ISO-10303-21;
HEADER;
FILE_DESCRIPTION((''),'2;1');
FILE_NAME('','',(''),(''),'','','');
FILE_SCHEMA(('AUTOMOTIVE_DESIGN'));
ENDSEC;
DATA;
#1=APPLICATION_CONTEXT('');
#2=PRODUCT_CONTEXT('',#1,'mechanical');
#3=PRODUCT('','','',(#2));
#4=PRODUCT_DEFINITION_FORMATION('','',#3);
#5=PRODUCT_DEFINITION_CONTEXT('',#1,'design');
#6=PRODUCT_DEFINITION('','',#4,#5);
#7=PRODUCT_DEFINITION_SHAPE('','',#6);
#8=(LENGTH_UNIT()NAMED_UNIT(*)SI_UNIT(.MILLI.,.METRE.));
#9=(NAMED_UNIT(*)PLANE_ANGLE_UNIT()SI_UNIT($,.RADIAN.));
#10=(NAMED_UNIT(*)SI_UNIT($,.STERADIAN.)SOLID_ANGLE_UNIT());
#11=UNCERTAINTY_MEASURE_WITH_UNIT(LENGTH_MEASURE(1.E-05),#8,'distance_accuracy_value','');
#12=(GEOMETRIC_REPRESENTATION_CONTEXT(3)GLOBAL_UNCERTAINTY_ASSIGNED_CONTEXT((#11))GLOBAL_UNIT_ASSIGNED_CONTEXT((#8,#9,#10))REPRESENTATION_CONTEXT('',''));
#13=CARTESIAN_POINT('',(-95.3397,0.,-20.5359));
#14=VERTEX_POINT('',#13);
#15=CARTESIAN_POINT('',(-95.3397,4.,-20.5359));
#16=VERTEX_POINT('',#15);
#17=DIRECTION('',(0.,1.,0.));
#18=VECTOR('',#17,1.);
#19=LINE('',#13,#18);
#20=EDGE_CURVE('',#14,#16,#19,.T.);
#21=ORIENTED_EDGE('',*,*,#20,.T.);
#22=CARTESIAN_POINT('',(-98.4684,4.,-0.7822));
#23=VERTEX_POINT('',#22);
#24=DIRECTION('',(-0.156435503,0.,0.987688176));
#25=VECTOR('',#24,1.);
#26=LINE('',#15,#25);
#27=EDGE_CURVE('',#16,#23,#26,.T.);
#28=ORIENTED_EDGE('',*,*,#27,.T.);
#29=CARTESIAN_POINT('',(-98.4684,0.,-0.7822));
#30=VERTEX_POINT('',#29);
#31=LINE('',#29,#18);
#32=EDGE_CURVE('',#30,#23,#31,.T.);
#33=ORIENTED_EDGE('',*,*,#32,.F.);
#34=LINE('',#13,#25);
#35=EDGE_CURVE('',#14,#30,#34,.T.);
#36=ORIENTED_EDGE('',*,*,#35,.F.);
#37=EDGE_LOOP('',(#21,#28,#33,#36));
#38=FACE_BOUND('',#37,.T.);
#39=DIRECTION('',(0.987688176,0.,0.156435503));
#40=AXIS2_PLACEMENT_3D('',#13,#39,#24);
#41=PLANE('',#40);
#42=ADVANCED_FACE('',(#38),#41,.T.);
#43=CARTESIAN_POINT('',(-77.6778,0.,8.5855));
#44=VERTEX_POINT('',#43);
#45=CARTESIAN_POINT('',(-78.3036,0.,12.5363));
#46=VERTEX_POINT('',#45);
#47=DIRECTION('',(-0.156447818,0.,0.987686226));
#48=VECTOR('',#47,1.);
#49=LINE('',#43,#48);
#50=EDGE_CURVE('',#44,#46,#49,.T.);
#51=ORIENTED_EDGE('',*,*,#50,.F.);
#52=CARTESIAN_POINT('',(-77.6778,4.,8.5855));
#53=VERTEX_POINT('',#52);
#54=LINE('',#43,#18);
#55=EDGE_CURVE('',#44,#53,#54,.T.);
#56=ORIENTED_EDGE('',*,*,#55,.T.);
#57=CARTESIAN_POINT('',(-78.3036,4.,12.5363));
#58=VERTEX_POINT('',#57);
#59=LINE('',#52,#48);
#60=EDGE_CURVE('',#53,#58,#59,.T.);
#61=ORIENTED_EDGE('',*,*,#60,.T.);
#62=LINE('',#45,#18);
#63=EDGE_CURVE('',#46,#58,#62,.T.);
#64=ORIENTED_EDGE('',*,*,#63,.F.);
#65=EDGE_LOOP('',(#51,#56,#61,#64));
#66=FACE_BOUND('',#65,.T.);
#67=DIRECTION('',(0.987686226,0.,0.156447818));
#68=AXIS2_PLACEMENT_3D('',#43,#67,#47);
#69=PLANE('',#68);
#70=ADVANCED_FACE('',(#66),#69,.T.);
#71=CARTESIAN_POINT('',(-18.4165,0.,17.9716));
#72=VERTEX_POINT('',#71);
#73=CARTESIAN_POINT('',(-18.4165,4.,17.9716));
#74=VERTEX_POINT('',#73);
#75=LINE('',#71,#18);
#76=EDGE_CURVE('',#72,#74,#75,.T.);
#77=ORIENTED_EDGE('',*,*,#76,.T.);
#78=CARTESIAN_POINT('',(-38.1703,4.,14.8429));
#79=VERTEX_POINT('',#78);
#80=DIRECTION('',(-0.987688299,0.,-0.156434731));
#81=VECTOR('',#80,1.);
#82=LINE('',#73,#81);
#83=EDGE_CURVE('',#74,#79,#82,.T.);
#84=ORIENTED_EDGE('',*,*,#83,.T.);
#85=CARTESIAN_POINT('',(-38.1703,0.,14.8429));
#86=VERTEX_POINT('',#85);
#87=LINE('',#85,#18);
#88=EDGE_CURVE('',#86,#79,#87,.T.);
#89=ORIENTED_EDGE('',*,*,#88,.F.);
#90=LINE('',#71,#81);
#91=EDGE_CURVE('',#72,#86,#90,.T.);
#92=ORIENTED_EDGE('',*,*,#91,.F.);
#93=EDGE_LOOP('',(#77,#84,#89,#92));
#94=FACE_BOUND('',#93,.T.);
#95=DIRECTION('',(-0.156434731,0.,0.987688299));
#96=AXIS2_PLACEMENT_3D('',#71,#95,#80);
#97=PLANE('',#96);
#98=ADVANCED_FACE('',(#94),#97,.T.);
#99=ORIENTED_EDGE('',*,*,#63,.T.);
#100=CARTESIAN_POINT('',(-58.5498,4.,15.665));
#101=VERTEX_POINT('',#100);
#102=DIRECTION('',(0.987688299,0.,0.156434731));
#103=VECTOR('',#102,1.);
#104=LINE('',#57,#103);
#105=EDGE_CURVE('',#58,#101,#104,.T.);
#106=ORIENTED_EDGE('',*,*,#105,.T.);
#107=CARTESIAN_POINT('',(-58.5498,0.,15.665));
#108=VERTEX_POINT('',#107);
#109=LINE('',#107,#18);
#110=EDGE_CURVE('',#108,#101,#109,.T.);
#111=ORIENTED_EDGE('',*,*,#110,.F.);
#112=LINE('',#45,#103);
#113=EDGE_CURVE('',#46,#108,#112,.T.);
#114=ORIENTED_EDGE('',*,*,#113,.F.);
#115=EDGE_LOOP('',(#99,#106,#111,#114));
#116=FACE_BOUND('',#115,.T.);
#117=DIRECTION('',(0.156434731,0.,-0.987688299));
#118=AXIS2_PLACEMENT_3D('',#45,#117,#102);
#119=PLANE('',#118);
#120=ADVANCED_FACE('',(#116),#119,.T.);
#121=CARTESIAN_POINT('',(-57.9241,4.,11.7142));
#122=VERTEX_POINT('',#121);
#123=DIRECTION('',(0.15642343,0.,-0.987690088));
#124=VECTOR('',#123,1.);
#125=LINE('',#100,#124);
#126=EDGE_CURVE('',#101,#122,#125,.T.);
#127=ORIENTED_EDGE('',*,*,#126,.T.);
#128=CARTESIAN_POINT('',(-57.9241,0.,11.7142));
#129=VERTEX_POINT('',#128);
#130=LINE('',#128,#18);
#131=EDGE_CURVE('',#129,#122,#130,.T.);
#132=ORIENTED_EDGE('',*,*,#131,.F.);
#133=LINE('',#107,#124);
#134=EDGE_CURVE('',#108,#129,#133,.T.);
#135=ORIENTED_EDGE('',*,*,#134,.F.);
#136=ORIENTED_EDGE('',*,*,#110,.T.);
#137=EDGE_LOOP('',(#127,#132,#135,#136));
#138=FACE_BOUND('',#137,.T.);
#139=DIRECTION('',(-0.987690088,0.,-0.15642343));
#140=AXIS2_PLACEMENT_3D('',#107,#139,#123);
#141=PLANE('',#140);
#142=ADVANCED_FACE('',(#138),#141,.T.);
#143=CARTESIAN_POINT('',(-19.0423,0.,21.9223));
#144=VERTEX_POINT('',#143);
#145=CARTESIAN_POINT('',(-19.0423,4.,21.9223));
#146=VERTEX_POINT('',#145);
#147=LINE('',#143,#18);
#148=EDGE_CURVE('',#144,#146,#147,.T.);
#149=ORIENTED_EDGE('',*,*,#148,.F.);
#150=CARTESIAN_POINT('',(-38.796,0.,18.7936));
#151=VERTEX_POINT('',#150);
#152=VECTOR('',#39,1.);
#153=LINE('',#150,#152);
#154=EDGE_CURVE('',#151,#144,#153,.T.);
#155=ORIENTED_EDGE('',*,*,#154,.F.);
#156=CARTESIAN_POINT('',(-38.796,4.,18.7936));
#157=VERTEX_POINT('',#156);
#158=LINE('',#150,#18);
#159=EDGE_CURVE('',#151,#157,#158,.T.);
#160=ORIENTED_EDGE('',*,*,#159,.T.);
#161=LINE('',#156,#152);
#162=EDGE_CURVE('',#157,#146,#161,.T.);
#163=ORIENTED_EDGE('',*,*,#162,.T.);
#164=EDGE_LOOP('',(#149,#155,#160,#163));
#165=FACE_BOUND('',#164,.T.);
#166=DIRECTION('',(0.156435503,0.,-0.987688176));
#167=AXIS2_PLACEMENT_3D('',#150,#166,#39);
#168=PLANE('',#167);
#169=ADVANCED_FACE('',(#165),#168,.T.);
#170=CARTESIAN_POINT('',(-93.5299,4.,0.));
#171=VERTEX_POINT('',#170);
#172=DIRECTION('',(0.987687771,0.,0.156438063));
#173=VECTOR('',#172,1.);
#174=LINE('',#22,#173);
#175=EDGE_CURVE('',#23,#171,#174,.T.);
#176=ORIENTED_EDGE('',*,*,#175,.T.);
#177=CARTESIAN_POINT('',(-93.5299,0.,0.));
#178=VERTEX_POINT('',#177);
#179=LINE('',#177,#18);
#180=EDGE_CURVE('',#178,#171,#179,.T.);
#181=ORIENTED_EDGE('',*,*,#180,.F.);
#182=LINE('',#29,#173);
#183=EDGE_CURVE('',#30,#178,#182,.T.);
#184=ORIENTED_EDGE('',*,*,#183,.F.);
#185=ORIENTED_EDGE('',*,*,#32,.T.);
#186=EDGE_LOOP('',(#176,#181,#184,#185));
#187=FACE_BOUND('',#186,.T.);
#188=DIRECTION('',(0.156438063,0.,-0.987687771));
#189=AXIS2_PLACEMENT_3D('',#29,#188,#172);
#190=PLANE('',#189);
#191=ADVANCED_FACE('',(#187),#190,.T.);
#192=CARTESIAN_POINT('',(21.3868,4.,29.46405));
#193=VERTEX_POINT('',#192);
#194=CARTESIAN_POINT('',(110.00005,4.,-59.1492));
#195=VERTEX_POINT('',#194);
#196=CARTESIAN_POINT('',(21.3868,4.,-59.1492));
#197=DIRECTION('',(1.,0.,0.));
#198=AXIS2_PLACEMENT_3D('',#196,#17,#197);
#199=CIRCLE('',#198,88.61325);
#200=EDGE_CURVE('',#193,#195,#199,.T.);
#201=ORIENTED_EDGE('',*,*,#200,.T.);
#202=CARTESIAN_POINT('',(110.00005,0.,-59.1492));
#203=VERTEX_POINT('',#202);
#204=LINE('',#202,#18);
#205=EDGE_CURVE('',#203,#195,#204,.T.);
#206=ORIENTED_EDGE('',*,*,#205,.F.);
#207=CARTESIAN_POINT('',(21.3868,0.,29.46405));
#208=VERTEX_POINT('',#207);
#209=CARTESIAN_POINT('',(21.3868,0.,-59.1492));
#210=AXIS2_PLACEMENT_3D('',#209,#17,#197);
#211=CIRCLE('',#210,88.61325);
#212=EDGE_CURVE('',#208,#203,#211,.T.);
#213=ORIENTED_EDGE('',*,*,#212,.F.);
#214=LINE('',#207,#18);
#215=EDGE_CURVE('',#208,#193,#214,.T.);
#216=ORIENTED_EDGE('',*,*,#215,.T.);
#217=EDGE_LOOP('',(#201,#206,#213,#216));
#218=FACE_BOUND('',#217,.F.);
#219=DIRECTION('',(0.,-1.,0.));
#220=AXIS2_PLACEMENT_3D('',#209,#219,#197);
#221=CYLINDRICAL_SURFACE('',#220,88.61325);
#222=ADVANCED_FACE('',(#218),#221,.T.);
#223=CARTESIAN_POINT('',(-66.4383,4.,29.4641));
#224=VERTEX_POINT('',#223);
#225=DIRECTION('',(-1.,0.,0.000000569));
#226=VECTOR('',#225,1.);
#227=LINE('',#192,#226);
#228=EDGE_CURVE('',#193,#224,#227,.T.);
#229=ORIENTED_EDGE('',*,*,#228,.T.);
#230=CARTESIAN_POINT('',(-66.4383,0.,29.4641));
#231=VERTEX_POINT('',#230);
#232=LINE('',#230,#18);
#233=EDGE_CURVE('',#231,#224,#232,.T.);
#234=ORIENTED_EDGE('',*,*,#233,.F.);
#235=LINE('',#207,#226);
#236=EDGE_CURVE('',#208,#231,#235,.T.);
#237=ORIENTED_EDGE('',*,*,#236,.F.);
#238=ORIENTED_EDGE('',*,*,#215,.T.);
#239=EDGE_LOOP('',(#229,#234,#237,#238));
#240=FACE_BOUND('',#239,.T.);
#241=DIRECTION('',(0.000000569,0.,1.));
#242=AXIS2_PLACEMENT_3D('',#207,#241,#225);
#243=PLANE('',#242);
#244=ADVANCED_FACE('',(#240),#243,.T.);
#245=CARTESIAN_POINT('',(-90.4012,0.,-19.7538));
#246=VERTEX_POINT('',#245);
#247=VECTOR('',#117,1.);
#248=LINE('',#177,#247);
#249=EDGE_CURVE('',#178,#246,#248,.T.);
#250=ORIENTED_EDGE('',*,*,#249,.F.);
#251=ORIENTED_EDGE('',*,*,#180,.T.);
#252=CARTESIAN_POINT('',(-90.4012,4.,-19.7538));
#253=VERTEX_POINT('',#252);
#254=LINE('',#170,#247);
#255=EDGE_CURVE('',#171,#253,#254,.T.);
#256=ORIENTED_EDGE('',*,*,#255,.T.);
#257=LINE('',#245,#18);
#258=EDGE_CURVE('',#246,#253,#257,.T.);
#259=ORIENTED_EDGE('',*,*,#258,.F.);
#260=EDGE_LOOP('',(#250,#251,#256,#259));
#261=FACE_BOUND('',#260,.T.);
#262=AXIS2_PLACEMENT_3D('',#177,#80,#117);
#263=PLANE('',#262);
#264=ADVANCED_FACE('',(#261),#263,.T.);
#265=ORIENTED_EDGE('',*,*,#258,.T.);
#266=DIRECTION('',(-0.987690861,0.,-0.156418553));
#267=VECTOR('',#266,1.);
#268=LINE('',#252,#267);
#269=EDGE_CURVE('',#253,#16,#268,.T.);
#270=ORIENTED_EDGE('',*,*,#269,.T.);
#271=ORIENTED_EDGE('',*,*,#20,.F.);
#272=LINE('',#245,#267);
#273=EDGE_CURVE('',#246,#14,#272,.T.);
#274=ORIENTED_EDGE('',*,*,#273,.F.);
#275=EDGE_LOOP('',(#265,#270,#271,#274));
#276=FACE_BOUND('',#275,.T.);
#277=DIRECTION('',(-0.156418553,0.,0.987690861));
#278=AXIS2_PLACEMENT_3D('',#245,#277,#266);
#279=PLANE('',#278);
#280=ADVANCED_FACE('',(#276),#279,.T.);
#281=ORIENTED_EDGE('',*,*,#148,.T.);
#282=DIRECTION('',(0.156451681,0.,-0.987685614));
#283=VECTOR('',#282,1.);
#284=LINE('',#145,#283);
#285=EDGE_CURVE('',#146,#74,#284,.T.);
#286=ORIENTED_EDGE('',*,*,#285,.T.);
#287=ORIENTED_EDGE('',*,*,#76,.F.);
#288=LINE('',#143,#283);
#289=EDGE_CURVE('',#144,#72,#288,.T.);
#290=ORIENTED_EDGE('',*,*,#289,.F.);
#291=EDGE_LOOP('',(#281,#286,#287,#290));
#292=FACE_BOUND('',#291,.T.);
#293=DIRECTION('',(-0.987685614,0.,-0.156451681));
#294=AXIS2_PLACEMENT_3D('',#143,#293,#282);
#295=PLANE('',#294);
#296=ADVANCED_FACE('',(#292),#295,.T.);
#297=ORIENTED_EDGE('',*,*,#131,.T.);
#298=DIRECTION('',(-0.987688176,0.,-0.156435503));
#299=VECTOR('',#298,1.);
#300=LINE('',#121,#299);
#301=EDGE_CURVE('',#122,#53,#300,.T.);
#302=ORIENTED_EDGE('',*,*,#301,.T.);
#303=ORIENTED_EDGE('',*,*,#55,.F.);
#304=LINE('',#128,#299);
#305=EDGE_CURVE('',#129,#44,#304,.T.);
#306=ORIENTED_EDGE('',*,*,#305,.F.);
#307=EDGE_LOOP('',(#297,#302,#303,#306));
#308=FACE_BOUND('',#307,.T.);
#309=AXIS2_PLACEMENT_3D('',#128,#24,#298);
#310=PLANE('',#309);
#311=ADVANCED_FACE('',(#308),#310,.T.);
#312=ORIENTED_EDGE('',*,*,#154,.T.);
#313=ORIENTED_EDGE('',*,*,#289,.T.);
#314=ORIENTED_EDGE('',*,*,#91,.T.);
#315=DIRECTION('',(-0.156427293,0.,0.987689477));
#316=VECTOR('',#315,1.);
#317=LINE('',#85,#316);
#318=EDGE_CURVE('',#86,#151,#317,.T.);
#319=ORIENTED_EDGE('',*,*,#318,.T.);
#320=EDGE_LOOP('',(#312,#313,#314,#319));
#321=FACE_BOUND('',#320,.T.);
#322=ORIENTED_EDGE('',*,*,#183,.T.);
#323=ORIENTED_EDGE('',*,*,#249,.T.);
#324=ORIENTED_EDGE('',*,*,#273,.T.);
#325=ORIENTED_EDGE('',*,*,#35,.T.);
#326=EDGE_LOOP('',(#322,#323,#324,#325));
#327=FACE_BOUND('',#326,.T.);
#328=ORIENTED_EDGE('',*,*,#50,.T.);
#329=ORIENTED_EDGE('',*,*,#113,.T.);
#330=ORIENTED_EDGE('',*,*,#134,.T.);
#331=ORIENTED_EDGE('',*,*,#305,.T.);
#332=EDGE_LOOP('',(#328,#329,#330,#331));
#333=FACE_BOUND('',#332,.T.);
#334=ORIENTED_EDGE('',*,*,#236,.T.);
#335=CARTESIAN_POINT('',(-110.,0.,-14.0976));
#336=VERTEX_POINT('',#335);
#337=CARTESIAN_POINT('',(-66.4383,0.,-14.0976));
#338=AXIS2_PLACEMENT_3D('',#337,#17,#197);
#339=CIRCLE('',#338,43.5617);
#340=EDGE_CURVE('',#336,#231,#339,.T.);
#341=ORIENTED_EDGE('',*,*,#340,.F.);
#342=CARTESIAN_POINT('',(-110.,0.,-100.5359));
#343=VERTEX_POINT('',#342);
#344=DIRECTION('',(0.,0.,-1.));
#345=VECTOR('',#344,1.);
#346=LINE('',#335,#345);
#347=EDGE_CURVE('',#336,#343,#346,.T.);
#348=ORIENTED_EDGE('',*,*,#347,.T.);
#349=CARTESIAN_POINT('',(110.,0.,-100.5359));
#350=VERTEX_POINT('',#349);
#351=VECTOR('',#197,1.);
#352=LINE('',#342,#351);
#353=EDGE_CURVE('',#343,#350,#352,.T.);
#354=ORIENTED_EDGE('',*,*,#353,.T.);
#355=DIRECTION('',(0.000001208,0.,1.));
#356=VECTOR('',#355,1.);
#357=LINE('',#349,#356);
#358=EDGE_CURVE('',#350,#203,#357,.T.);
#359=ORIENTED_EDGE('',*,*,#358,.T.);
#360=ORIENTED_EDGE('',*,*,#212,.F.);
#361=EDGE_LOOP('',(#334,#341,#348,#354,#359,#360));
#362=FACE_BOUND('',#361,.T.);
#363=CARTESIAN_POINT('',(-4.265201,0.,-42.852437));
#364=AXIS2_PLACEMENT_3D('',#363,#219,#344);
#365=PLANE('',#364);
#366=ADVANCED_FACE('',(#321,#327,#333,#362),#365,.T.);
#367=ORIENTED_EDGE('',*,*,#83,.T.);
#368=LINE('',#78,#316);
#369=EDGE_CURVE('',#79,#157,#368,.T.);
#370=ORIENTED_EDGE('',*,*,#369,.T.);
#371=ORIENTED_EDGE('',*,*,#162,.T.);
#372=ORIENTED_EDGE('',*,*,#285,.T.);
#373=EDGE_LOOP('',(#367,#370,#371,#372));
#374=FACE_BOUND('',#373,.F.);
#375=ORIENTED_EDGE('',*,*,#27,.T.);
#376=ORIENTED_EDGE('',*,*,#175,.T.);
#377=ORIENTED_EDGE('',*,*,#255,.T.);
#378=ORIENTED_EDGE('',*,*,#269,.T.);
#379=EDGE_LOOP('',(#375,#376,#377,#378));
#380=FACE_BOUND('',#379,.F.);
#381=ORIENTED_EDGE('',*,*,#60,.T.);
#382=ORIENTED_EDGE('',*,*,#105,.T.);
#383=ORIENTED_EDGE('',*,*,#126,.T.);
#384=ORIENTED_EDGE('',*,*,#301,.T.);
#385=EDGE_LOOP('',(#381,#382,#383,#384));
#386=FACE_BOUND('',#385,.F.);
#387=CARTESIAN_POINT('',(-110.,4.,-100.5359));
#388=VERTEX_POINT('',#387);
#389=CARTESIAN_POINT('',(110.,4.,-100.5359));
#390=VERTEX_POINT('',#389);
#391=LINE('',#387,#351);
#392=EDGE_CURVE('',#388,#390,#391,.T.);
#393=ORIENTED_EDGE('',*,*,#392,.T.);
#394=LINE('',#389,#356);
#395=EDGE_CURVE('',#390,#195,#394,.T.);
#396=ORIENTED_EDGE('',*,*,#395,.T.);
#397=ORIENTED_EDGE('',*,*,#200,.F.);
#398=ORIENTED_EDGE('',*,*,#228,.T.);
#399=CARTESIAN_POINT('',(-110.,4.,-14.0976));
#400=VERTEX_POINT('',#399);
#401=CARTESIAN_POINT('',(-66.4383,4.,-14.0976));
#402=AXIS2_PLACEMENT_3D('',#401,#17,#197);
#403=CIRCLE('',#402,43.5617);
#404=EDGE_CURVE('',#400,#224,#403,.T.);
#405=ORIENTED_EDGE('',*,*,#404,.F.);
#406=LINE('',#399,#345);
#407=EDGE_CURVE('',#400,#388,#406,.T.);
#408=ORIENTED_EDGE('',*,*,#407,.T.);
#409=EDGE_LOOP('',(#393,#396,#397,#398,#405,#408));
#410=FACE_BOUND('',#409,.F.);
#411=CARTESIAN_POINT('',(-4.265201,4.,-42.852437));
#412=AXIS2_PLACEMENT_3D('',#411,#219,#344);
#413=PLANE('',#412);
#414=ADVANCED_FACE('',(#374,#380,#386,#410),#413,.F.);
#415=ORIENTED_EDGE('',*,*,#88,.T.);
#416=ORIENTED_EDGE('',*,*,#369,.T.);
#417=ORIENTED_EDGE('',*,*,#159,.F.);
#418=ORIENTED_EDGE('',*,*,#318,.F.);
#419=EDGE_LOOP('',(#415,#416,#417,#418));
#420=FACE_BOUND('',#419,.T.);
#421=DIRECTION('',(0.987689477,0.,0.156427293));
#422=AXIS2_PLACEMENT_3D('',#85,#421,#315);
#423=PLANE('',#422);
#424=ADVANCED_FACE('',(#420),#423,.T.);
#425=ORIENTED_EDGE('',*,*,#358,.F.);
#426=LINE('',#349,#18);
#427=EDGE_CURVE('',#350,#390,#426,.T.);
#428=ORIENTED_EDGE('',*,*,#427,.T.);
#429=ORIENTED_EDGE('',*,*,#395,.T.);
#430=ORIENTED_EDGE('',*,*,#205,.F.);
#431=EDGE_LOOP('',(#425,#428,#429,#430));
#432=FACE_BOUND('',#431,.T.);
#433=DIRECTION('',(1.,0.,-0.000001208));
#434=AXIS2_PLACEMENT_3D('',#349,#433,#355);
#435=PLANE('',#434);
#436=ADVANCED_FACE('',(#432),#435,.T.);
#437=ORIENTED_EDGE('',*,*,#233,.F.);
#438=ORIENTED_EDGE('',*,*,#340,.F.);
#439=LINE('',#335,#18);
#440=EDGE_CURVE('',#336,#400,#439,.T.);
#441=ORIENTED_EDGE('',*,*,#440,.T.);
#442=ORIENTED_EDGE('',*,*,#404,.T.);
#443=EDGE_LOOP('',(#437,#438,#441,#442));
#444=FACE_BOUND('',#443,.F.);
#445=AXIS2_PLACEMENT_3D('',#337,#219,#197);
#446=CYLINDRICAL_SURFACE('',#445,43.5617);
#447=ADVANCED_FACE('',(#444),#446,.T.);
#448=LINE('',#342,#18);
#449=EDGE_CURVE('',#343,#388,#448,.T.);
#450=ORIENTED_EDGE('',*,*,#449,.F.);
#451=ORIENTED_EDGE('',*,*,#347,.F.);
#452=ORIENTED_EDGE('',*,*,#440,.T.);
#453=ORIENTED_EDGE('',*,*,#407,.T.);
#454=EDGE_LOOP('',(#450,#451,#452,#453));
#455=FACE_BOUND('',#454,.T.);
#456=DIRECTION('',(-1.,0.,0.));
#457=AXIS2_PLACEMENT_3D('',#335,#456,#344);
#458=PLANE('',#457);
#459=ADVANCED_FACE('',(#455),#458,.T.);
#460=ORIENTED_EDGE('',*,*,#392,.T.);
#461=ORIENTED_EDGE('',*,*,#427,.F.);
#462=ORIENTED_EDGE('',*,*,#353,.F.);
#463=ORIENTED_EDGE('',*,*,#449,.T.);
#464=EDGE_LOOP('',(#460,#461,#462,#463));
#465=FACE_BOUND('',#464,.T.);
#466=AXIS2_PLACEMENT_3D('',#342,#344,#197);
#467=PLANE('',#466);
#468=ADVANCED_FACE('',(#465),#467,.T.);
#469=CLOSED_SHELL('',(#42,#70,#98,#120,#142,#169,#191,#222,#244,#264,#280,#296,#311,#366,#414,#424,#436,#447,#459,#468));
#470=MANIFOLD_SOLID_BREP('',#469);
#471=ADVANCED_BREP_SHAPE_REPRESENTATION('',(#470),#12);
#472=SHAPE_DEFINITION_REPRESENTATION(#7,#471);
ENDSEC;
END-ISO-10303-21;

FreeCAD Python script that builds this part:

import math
import FreeCAD as App
import Part
import Sketcher

V = App.Vector
Q = App.Units.Quantity


def add_polygon(sketch, points):
    """Adds a closed chain of lines whose ends are joined by coincident constraints."""
    first, n = sketch.GeometryCount, len(points)
    for a, b in zip(points, points[1:] + points[:1]):
        sketch.addGeometry(Part.LineSegment(App.Vector(*a, 0), App.Vector(*b, 0)), False)
    for i in range(n):
        sketch.addConstraint(Sketcher.Constraint("Coincident", first + i, 2, first + (i + 1) % n, 1))

doc = App.newDocument("Part")
body = doc.addObject("PartDesign::Body", "Body")

# Sketch on XZ plane
sketch1 = body.newObject("Sketcher::SketchObject", "Sketch")
sketch1.AttachmentSupport = (doc.getObject("XZ_Plane"), [""])
sketch1.MapMode = "FlatFace"
sketch1.addGeometry(Part.ArcOfCircle(Part.Circle(V(21.4, -59.1, 0), V(0, 0, 1), 88.6), math.radians(0), math.radians(90)), False)  # 0
sketch1.addGeometry(Part.LineSegment(V(21.4, 29.5, 0), V(-66.4, 29.5, 0)), False)  # 1
sketch1.addGeometry(Part.ArcOfCircle(Part.Circle(V(-66.4, -14.1, 0), V(0, 0, 1), 43.6), math.radians(90), math.radians(180)), False)  # 2
sketch1.addGeometry(Part.LineSegment(V(-110, -14.1, 0), V(-110, -100.5, 0)), False)  # 3
sketch1.addGeometry(Part.LineSegment(V(-110, -100.5, 0), V(110, -100.5, 0)), False)  # 4
sketch1.addGeometry(Part.LineSegment(V(110, -100.5, 0), V(110, -59.1, 0)), False)  # 5
add_polygon(sketch1, [(-95.3, -20.5), (-98.5, -0.8), (-93.5, 0), (-90.4, -19.8)])  # lines 6-9
add_polygon(sketch1, [(-77.7, 8.6), (-78.3, 12.5), (-58.5, 15.7), (-57.9, 11.7)])  # lines 10-13
add_polygon(sketch1, [(-38.2, 14.8), (-38.8, 18.8), (-19, 21.9), (-18.4, 18)])  # lines 14-17
sketch1.addConstraint([
    Sketcher.Constraint("Tangent", 0, 2, 1, 1),
    Sketcher.Constraint("Tangent", 1, 2, 2, 1),
    Sketcher.Constraint("Tangent", 2, 2, 3, 1),
    Sketcher.Constraint("Coincident", 3, 2, 4, 1),
    Sketcher.Constraint("Coincident", 4, 2, 5, 1),
    Sketcher.Constraint("Tangent", 5, 2, 0, 1),
    Sketcher.Constraint("Horizontal", 1),
    Sketcher.Constraint("Vertical", 3),
    Sketcher.Constraint("Horizontal", 4),
    Sketcher.Constraint("Vertical", 5),
    Sketcher.Constraint("PointOnObject", 7, 2, -1),
    Sketcher.Constraint("Perpendicular", 6, 7),
    Sketcher.Constraint("Perpendicular", 7, 8),
    Sketcher.Constraint("Perpendicular", 8, 9),
    Sketcher.Constraint("Perpendicular", 9, 10),
    Sketcher.Constraint("Perpendicular", 10, 11),
    Sketcher.Constraint("Perpendicular", 11, 12),
    Sketcher.Constraint("Perpendicular", 12, 13),
    Sketcher.Constraint("Perpendicular", 13, 14),
    Sketcher.Constraint("Perpendicular", 14, 15),
    Sketcher.Constraint("Perpendicular", 15, 16),
    Sketcher.Constraint("Perpendicular", 16, 17),
    Sketcher.Constraint("Equal", 8, 11),
    Sketcher.Constraint("Equal", 12, 14),
    Sketcher.Constraint("Equal", 13, 15),
    Sketcher.Constraint("DistanceX", 4, 1, 4, 2, Q("220 mm")),
    Sketcher.Constraint("Angle", 6, Q("99 deg")),
    Sketcher.Constraint("Distance", 6, Q("20 mm")),
    Sketcher.Constraint("Distance", 7, Q("5 mm")),
    Sketcher.Constraint("Distance", 10, Q("4 mm")),
    Sketcher.Constraint("DistanceX", 2, 2, -1, 1, Q("110 mm")),
    Sketcher.Constraint("DistanceY", 3, 2, 1, 2, Q("130 mm")),
    Sketcher.Constraint("Radius", 0, Q("88.6133 mm")),
    Sketcher.Constraint("Radius", 2, Q("43.5617 mm")),
    Sketcher.Constraint("DistanceX", 7, 2, -1, 1, Q("93.53 mm")),
    Sketcher.Constraint("DistanceY", 8, 2, 10, 2, Q("32.29 mm")),
    Sketcher.Constraint("DistanceX", 7, 2, 11, 2, Q("34.98 mm")),
    Sketcher.Constraint("DistanceY", 12, 2, 1, 2, Q("17.75 mm")),
    Sketcher.Constraint("DistanceX", 14, 2, -1, 1, Q("38.796 mm")),
    Sketcher.Constraint("DistanceY", -1, 1, 17, 2, Q("14.843 mm")),
])
pad1 = body.newObject("PartDesign::Pad", "Pad")
pad1.Profile = sketch1
pad1.Length = 4
pad1.Reversed = True

doc.recompute()
